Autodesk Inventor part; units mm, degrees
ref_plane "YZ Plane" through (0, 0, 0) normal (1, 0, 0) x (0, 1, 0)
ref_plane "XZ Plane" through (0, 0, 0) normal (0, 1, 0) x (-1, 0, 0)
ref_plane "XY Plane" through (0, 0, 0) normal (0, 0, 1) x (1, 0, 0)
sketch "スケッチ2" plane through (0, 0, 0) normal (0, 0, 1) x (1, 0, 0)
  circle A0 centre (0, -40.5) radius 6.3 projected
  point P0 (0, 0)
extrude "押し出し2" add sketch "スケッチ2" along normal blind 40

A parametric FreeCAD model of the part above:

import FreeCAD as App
import Part
import Sketcher

doc = App.newDocument("Part")
body = doc.addObject("PartDesign::Body", "Body")

sketch1 = doc.addObject("Sketcher::SketchObject", "Sketch")
body.addObject(sketch1)
sketch1.AttachmentSupport = (doc.XY_Plane, [""])
sketch1.MapMode = "FlatFace"
sketch1.addGeometry(Part.Circle(App.Vector(0, -40, 0), App.Vector(0, 0, 1), 6), False)
sketch1.addConstraint([
    Sketcher.Constraint("PointOnObject", 0, 3, -2),
    Sketcher.Constraint("Diameter", 0, 12.6),
    Sketcher.Constraint("DistanceY", 0, 3, -1, 1, 40.5),
])
pad1 = doc.addObject("PartDesign::Pad", "Pad")
body.addObject(pad1)
pad1.Profile = sketch1
pad1.Length = 40

doc.recompute()
